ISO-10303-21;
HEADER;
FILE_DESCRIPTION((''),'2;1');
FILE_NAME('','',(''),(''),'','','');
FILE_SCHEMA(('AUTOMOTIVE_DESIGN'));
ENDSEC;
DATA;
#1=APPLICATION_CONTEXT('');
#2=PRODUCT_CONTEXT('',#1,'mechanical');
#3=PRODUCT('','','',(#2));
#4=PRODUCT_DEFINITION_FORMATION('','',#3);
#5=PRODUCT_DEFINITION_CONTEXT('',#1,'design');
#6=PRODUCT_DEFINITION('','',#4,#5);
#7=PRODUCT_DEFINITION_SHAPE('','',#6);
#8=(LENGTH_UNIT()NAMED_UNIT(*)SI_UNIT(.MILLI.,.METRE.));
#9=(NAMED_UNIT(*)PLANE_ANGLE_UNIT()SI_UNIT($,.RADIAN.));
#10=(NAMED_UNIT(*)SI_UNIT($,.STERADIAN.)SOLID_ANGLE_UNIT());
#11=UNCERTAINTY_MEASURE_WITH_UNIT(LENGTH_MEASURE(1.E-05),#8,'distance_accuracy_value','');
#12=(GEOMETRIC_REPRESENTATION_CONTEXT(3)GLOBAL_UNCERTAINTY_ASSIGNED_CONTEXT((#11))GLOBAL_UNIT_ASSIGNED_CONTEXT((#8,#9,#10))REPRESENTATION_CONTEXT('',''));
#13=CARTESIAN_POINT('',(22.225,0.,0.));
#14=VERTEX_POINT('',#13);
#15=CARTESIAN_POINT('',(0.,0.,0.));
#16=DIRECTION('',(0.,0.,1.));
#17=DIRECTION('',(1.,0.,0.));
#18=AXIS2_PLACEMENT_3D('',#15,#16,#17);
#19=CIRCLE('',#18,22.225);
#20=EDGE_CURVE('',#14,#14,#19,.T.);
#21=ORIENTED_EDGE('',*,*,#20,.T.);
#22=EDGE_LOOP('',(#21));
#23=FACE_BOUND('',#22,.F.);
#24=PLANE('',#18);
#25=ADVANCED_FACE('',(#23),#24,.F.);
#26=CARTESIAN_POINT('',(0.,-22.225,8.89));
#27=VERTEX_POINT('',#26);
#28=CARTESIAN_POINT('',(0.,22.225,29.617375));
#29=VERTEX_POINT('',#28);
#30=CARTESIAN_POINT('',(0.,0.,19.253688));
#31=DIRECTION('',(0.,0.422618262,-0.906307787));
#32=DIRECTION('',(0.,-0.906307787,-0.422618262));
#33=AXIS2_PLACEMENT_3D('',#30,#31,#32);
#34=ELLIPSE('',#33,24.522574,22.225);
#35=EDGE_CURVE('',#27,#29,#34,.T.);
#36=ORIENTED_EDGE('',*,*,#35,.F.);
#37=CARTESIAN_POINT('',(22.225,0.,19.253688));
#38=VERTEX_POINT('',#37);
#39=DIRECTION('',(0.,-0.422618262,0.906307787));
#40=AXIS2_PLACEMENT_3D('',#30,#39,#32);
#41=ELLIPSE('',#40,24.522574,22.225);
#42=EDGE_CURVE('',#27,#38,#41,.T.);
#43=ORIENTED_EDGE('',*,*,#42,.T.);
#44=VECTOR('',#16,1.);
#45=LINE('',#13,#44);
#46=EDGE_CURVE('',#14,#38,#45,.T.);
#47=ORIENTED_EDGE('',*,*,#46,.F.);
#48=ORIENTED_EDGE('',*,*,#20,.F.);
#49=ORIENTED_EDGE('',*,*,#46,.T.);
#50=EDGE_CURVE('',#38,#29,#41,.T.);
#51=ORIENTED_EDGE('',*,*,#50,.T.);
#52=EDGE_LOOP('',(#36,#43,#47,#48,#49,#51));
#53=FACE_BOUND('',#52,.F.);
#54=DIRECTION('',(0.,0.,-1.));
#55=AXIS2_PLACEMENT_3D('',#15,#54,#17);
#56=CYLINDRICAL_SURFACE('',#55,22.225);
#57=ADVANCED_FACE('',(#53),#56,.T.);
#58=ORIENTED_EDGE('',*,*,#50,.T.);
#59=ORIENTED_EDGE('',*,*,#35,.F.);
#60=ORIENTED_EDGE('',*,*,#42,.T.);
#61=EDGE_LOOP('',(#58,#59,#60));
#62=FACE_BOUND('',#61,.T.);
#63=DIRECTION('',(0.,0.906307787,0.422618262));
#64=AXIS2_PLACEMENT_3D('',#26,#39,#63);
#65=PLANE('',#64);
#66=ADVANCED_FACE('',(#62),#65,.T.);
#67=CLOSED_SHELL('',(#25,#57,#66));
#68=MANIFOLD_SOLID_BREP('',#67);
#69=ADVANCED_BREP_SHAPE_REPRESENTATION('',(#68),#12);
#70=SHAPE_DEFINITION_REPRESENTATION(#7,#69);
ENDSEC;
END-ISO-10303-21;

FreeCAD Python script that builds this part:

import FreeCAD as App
import Part
import Sketcher
Q = App.Units.Quantity


def add_polygon(sketch, points):
    """Adds a closed chain of lines whose ends are joined by coincident constraints."""
    first, n = sketch.GeometryCount, len(points)
    for a, b in zip(points, points[1:] + points[:1]):
        sketch.addGeometry(Part.LineSegment(App.Vector(*a, 0), App.Vector(*b, 0)), False)
    for i in range(n):
        sketch.addConstraint(Sketcher.Constraint("Coincident", first + i, 2, first + (i + 1) % n, 1))

doc = App.newDocument("Part")
params = doc.addObject("Spreadsheet::Sheet", "Params")
for row, (alias, value) in enumerate([
    ("sketch1_diameter", "1.75 in"),
    ("pad1_length", "1.5 in"),
], start=1):
    params.set(f"A{row}", alias)
    params.set(f"B{row}", "=" + value)
    params.setAlias(f"B{row}", alias)

body = doc.addObject("PartDesign::Body", "Body")

# Sketch on XY plane
sketch1 = body.newObject("Sketcher::SketchObject", "Sketch")
sketch1.AttachmentSupport = (doc.getObject("XY_Plane"), [""])
sketch1.MapMode = "FlatFace"
sketch1.addGeometry(Part.Circle(App.Vector(0, 0, 0), App.Vector(0, 0, 1), 22), False)
sketch1.addConstraint(Sketcher.Constraint("Coincident", 0, 3, -1, 1))
sketch1.addConstraint(Sketcher.Constraint("Diameter", 0, Q("1.75 in")))
sketch1.setExpression("Constraints[1]", "Params.sketch1_diameter")
pad1 = body.newObject("PartDesign::Pad", "Pad")
pad1.Profile = sketch1
pad1.setExpression("Length", "Params.pad1_length")

# Sketch on YZ plane
sketch2 = body.newObject("Sketcher::SketchObject", "Sketch001")
sketch2.AttachmentSupport = (doc.getObject("YZ_Plane"), [""])
sketch2.MapMode = "FlatFace"
add_polygon(sketch2, [(-22, 49), (-22, 9), (64, 49)])  # lines 0-2
sketch2.addConstraint(Sketcher.Constraint("Vertical", 0))
sketch2.addConstraint(Sketcher.Constraint("Horizontal", 2))
sketch2.addConstraint(Sketcher.Constraint("Angle", 1, Q("25 deg")))
sketch2.addConstraint(Sketcher.Constraint("DistanceY", -1, 1, 0, 2, Q("0.35 in")))
sketch2.addConstraint(Sketcher.Constraint("DistanceX", 0, 2, -1, 1, Q("0.875 in")))
sketch2.addConstraint(Sketcher.Constraint("DistanceY", 0, 2, 0, 1, Q("40.371302 mm")))
pocket1 = body.newObject("PartDesign::Pocket", "Pocket")
pocket1.Profile = sketch2
pocket1.Type = "ThroughAll"
pocket1.Midplane = True

doc.recompute()
